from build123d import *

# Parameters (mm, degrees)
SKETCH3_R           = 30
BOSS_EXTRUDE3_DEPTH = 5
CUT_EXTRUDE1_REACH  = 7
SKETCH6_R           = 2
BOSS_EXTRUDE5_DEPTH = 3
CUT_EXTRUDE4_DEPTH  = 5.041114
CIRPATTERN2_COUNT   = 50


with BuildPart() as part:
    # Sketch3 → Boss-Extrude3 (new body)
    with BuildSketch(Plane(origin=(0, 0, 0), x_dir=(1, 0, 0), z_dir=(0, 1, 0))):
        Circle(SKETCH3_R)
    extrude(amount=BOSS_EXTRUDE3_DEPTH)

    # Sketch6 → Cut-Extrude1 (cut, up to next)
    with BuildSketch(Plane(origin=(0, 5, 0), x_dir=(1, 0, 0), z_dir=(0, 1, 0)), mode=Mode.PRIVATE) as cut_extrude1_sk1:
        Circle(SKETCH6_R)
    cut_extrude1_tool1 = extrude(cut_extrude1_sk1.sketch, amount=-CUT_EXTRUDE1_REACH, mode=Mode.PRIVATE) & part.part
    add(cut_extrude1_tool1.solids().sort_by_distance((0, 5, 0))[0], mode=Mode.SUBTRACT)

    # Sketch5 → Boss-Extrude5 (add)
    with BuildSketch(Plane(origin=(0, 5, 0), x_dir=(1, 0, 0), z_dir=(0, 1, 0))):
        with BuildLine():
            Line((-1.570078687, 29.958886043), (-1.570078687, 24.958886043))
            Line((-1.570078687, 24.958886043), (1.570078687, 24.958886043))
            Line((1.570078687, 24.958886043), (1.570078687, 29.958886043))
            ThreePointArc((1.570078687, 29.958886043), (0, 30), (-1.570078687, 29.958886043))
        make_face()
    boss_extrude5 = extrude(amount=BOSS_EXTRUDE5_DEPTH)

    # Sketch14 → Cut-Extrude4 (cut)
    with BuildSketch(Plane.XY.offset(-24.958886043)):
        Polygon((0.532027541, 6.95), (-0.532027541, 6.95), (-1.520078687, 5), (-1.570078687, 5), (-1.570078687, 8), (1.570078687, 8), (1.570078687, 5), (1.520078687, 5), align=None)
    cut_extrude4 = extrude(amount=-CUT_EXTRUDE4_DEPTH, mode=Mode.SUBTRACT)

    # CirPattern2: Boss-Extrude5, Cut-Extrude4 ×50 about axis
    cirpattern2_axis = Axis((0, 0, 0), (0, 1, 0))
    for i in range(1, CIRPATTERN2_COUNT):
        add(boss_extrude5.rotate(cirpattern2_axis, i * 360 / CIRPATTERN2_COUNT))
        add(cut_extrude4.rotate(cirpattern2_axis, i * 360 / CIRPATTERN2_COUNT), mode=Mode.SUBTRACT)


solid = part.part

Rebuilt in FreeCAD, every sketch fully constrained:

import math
import FreeCAD as App
import Part
import Sketcher

V = App.Vector


def add_polygon(sketch, points):
    """Adds a closed chain of lines whose ends are joined by coincident constraints."""
    first, n = sketch.GeometryCount, len(points)
    for a, b in zip(points, points[1:] + points[:1]):
        sketch.addGeometry(Part.LineSegment(App.Vector(*a, 0), App.Vector(*b, 0)), False)
    for i in range(n):
        sketch.addConstraint(Sketcher.Constraint("Coincident", first + i, 2, first + (i + 1) % n, 1))

doc = App.newDocument("Part")
body = doc.addObject("PartDesign::Body", "Body")

# Sketch on XZ plane
sketch1 = body.newObject("Sketcher::SketchObject", "Sketch")
sketch1.AttachmentSupport = (doc.getObject("XZ_Plane"), [""])
sketch1.MapMode = "FlatFace"
sketch1.addGeometry(Part.Circle(V(0, 0, 0), V(0, 0, 1), 30), False)
sketch1.addConstraint([
    Sketcher.Constraint("Coincident", 0, 3, -1, 1),
    Sketcher.Constraint("Diameter", 0, 60.0),
])
pad1 = body.newObject("PartDesign::Pad", "Pad")
pad1.Profile = sketch1
pad1.Length = 5
pad1.Reversed = True

# Sketch on XZ plane
sketch2 = body.newObject("Sketcher::SketchObject", "Sketch001")
sketch2.AttachmentSupport = (doc.getObject("XZ_Plane"), [""])
sketch2.MapMode = "FlatFace"
sketch2.AttachmentOffset = App.Placement(V(0, 0, -5), App.Rotation())
sketch2.addGeometry(Part.Circle(V(0, 0, 0), V(0, 0, 1), 2), False)
sketch2.addConstraint([
    Sketcher.Constraint("Coincident", 0, 3, -1, 1),
    Sketcher.Constraint("Diameter", 0, 4.0),
])
pocket1 = body.newObject("PartDesign::Pocket", "Pocket")
pocket1.Profile = sketch2
pocket1.Type = "UpToFirst"
pocket1.Reversed = True

# Sketch on XZ plane
sketch3 = body.newObject("Sketcher::SketchObject", "Sketch002")
sketch3.AttachmentSupport = (doc.getObject("XZ_Plane"), [""])
sketch3.MapMode = "FlatFace"
sketch3.AttachmentOffset = App.Placement(V(0, 0, -5), App.Rotation())
sketch3.addGeometry([
    Part.LineSegment(V(-1.6, -30, 0), V(-1.6, -25, 0)),
    Part.LineSegment(V(-1.6, -25, 0), V(1.6, -25, 0)),
    Part.LineSegment(V(1.6, -25, 0), V(1.6, -30, 0)),
    Part.ArcOfCircle(Part.Circle(V(0, 0, 0), V(0, 0, 1), 30), math.radians(-93), math.radians(-87)),
], False)
sketch3.addConstraint([
    Sketcher.Constraint("Coincident", 0, 2, 1, 1),
    Sketcher.Constraint("Coincident", 1, 2, 2, 1),
    Sketcher.Constraint("Coincident", 2, 2, 3, 2),
    Sketcher.Constraint("Coincident", 3, 1, 0, 1),
    Sketcher.Constraint("Vertical", 0),
    Sketcher.Constraint("Horizontal", 1),
    Sketcher.Constraint("Vertical", 2),
    Sketcher.Constraint("Coincident", 3, 3, -1, 1),
    Sketcher.Constraint("Horizontal", 2, 2, 3, 1),
    Sketcher.Constraint("Radius", 3, 30.0),
    Sketcher.Constraint("DistanceY", 0, 1, 0, 2, 5.0),
    Sketcher.Constraint("DistanceX", 1, 1, 1, 2, 3.140157),
])
pad2 = body.newObject("PartDesign::Pad", "Pad001")
pad2.Profile = sketch3
pad2.Length = 3
pad2.Reversed = True

# Sketch on XY plane
sketch4 = body.newObject("Sketcher::SketchObject", "Sketch003")
sketch4.AttachmentSupport = (doc.getObject("XY_Plane"), [""])
sketch4.MapMode = "FlatFace"
sketch4.AttachmentOffset = App.Placement(V(0, 0, -24.958886), App.Rotation())
add_polygon(sketch4, [(-0.53, 6.95), (0.53, 6.95), (1.52, 5), (1.57, 5), (1.57, 8), (-1.57, 8), (-1.57, 5), (-1.52, 5)])  # lines 0-7
sketch4.addConstraint([
    Sketcher.Constraint("Horizontal", 0),
    Sketcher.Constraint("Horizontal", 2),
    Sketcher.Constraint("Vertical", 3),
    Sketcher.Constraint("Horizontal", 4),
    Sketcher.Constraint("Vertical", 5),
    Sketcher.Constraint("Horizontal", 6),
    Sketcher.Constraint("Symmetric", 2, 2, 5, 2, -2),
    Sketcher.Constraint("Equal", 2, 6),
    Sketcher.Constraint("Equal", 1, 7),
    Sketcher.Constraint("DistanceY", 3, 1, 3, 2, 3.0),
    Sketcher.Constraint("DistanceY", -1, 1, 1, 2, 5.0),
    Sketcher.Constraint("DistanceX", 2, 1, 2, 2, 0.05),
    Sketcher.Constraint("DistanceY", -1, 1, 0, 2, 6.95),
    Sketcher.Constraint("DistanceX", 0, 1, 0, 2, 1.064055),
    Sketcher.Constraint("DistanceX", 4, 2, 4, 1, 3.140157),
])
pocket2 = body.newObject("PartDesign::Pocket", "Pocket001")
pocket2.Profile = sketch4
pocket2.Length = 5.041114
doc.recompute()

polarpattern = body.newObject("PartDesign::PolarPattern", "PolarPattern")
polarpattern.Originals = [pad2, pocket2]
polarpattern.Axis = (doc.getObject("Y_Axis"), [""])
polarpattern.Angle = 360
polarpattern.Occurrences = 50
body.Tip = polarpattern

doc.recompute()
